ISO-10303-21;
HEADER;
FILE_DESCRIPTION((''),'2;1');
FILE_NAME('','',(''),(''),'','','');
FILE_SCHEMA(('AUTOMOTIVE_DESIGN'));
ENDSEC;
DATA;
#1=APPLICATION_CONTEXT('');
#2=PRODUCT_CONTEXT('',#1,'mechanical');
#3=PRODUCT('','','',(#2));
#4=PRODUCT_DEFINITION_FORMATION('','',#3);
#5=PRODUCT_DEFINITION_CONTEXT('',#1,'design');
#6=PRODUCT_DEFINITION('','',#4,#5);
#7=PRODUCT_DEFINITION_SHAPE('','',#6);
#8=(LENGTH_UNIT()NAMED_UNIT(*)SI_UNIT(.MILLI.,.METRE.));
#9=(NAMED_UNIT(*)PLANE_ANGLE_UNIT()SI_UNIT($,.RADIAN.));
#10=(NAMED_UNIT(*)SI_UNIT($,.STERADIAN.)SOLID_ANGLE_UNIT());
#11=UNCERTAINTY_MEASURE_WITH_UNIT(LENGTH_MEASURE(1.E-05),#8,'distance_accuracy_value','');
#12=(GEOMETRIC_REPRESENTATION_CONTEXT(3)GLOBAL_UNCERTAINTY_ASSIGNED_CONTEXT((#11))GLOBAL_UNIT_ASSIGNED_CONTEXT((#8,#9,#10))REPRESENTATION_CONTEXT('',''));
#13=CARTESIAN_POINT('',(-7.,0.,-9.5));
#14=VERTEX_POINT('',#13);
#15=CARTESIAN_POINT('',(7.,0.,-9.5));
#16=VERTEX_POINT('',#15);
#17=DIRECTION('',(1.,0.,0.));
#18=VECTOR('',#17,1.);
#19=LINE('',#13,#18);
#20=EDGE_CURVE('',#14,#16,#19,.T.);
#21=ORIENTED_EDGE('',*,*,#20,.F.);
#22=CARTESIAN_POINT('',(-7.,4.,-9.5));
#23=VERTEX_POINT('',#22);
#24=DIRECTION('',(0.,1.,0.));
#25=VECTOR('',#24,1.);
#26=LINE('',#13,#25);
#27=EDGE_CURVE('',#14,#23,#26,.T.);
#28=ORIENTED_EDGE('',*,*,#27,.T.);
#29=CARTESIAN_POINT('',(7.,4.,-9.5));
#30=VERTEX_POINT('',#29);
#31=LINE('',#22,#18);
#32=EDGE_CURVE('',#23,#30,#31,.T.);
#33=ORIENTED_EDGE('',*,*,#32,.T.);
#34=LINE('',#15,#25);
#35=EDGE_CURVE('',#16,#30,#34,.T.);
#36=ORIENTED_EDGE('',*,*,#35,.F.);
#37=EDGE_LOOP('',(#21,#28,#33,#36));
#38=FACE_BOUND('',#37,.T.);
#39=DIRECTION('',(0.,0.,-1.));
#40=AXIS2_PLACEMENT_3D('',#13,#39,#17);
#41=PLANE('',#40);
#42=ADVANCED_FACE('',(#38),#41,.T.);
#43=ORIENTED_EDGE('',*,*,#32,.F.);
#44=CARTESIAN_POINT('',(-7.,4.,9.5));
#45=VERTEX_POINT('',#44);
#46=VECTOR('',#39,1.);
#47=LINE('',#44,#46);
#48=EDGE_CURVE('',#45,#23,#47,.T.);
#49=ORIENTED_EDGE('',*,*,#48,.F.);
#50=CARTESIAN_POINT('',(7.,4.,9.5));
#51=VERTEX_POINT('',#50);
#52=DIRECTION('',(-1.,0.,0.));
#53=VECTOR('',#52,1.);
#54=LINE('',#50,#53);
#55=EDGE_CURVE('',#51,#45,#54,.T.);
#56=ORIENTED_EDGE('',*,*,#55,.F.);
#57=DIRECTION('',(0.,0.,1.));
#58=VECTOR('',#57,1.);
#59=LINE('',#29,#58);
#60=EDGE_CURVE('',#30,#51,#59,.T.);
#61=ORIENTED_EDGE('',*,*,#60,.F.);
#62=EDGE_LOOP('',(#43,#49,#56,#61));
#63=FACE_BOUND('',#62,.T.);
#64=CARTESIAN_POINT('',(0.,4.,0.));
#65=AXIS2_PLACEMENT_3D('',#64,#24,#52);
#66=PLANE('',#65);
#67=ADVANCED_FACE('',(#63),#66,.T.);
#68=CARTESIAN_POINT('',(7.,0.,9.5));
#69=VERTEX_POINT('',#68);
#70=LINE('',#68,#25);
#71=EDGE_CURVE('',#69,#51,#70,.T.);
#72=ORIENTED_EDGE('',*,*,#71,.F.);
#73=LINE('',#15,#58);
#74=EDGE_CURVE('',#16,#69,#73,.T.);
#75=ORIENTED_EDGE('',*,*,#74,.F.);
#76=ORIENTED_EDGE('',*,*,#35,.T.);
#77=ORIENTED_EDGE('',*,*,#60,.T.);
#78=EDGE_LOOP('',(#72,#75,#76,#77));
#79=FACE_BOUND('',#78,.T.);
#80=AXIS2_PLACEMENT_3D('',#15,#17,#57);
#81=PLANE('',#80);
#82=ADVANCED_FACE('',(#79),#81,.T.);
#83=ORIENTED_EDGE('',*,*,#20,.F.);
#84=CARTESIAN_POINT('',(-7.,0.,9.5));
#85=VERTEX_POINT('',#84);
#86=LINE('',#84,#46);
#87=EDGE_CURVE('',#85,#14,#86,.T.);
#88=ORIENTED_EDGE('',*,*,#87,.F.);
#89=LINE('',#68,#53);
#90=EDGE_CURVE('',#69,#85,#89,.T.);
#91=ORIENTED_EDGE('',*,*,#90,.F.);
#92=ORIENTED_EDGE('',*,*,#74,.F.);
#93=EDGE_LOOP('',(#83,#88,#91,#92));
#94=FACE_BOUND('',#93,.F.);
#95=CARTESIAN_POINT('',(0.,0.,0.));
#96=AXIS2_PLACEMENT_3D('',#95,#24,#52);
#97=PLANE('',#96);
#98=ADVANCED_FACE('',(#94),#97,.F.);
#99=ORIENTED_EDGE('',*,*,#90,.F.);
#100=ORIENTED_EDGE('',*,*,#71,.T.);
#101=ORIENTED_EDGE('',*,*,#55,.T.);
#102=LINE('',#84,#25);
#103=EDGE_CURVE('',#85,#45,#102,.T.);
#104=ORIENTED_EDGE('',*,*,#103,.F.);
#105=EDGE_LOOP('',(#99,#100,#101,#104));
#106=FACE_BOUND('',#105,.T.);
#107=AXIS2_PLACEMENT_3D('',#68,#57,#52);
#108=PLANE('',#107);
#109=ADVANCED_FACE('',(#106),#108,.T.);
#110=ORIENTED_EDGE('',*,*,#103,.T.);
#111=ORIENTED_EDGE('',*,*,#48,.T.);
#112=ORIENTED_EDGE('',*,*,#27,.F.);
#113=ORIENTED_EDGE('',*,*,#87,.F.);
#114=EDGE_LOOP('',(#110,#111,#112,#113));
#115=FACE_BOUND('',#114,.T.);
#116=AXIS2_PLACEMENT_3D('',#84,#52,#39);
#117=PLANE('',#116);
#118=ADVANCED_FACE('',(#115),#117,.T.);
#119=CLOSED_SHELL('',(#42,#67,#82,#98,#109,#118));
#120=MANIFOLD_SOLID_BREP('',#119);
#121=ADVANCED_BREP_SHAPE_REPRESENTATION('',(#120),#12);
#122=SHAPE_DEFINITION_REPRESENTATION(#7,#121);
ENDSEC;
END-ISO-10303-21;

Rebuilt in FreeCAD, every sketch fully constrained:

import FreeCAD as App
import Part
import Sketcher
Q = App.Units.Quantity


def add_polygon(sketch, points):
    """Adds a closed chain of lines whose ends are joined by coincident constraints."""
    first, n = sketch.GeometryCount, len(points)
    for a, b in zip(points, points[1:] + points[:1]):
        sketch.addGeometry(Part.LineSegment(App.Vector(*a, 0), App.Vector(*b, 0)), False)
    for i in range(n):
        sketch.addConstraint(Sketcher.Constraint("Coincident", first + i, 2, first + (i + 1) % n, 1))

doc = App.newDocument("Part")
body = doc.addObject("PartDesign::Body", "Body")

# Sketch on XZ plane
sketch1 = doc.addObject("Sketcher::SketchObject", "Sketch")
body.addObject(sketch1)
sketch1.AttachmentSupport = (doc.XZ_Plane, [""])
sketch1.MapMode = "FlatFace"
add_polygon(sketch1, [(-7, 9.5), (7, 9.5), (7, -9.5), (-7, -9.5)])  # lines 0-3
sketch1.addConstraint([
    Sketcher.Constraint("Horizontal", 0),
    Sketcher.Constraint("Vertical", 1),
    Sketcher.Constraint("Horizontal", 2),
    Sketcher.Constraint("Vertical", 3),
    Sketcher.Constraint("Symmetric", 0, 2, 2, 2, -1, 1),
    Sketcher.Constraint("DistanceX", 0, 1, 0, 2, Q("14 mm")),
    Sketcher.Constraint("DistanceY", 1, 2, 1, 1, Q("19 mm")),
])
pad1 = doc.addObject("PartDesign::Pad", "Pad")
body.addObject(pad1)
pad1.Profile = sketch1
pad1.Length = 4
pad1.Reversed = True

doc.recompute()
